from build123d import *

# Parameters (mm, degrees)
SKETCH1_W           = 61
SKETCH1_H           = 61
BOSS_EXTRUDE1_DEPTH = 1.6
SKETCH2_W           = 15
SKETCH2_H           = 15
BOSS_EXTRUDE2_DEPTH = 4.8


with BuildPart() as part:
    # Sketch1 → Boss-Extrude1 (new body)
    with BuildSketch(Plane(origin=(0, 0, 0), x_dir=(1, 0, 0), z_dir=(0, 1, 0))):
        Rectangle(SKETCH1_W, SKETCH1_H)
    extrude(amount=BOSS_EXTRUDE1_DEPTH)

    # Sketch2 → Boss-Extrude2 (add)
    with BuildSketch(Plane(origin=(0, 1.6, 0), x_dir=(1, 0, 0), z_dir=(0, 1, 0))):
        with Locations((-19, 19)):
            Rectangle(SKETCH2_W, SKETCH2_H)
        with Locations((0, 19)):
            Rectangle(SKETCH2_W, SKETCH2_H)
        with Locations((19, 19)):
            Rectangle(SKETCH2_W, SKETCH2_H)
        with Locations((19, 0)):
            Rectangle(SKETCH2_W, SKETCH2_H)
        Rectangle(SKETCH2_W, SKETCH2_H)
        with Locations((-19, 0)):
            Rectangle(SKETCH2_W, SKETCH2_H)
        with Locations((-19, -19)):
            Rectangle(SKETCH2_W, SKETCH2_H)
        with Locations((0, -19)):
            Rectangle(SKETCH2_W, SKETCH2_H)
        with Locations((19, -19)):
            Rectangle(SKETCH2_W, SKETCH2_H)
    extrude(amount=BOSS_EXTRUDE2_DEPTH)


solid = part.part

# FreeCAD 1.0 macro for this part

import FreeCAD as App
import Part
import Sketcher
from FreeCAD import Vector


def add_polygon(sketch, points):
    """Adds a closed chain of lines whose ends are joined by coincident constraints."""
    first, n = sketch.GeometryCount, len(points)
    for a, b in zip(points, points[1:] + points[:1]):
        sketch.addGeometry(Part.LineSegment(App.Vector(*a, 0), App.Vector(*b, 0)), False)
    for i in range(n):
        sketch.addConstraint(Sketcher.Constraint("Coincident", first + i, 2, first + (i + 1) % n, 1))

doc = App.newDocument("Part")
body = doc.addObject("PartDesign::Body", "Body")

# Sketch on XZ plane
sketch1 = body.newObject("Sketcher::SketchObject", "Sketch")
sketch1.AttachmentSupport = (doc.getObject("XZ_Plane"), [""])
sketch1.MapMode = "FlatFace"
add_polygon(sketch1, [(-30, -30), (-30, 30), (30, 30), (30, -30)])  # lines 0-3
sketch1.addConstraint([
    Sketcher.Constraint("Vertical", 0),
    Sketcher.Constraint("Horizontal", 1),
    Sketcher.Constraint("Vertical", 2),
    Sketcher.Constraint("Horizontal", 3),
    Sketcher.Constraint("Symmetric", 0, 2, 2, 2, -1, 1),
    Sketcher.Constraint("Equal", 3, 0),
    Sketcher.Constraint("DistanceX", 1, 1, 1, 2, 61.0),
])
pad1 = body.newObject("PartDesign::Pad", "Pad")
pad1.Profile = sketch1
pad1.Length = 1.6
pad1.Reversed = True

# Sketch on XZ plane
sketch2 = body.newObject("Sketcher::SketchObject", "Sketch001")
sketch2.AttachmentSupport = (doc.getObject("XZ_Plane"), [""])
sketch2.MapMode = "FlatFace"
sketch2.AttachmentOffset = App.Placement(Vector(0, 0, -1.6), App.Rotation())
add_polygon(sketch2, [(-26, -26), (-26, -12), (-12, -12), (-12, -26)])  # lines 0-3
add_polygon(sketch2, [(-8, -26), (-8, -12), (8, -12), (8, -26)])  # lines 4-7
add_polygon(sketch2, [(12, -26), (12, -12), (26, -12), (26, -26)])  # lines 8-11
add_polygon(sketch2, [(12, -8), (12, 8), (26, 8), (26, -8)])  # lines 12-15
add_polygon(sketch2, [(-8, -8), (-8, 8), (8, 8), (8, -8)])  # lines 16-19
add_polygon(sketch2, [(-26, -8), (-26, 8), (-12, 8), (-12, -8)])  # lines 20-23
add_polygon(sketch2, [(-26, 12), (-26, 26), (-12, 26), (-12, 12)])  # lines 24-27
add_polygon(sketch2, [(-8, 12), (-8, 26), (8, 26), (8, 12)])  # lines 28-31
add_polygon(sketch2, [(12, 12), (12, 26), (26, 26), (26, 12)])  # lines 32-35
sketch2.addConstraint([
    Sketcher.Constraint("Vertical", 0),
    Sketcher.Constraint("Horizontal", 1),
    Sketcher.Constraint("Vertical", 2),
    Sketcher.Constraint("Horizontal", 3),
    Sketcher.Constraint("Vertical", 4),
    Sketcher.Constraint("Horizontal", 5),
    Sketcher.Constraint("Vertical", 6),
    Sketcher.Constraint("Horizontal", 7),
    Sketcher.Constraint("Vertical", 8),
    Sketcher.Constraint("Horizontal", 9),
    Sketcher.Constraint("Vertical", 10),
    Sketcher.Constraint("Horizontal", 11),
    Sketcher.Constraint("Vertical", 12),
    Sketcher.Constraint("Horizontal", 13),
    Sketcher.Constraint("Vertical", 14),
    Sketcher.Constraint("Horizontal", 15),
    Sketcher.Constraint("Vertical", 16),
    Sketcher.Constraint("Horizontal", 17),
    Sketcher.Constraint("Vertical", 18),
    Sketcher.Constraint("Horizontal", 19),
    Sketcher.Constraint("Vertical", 20),
    Sketcher.Constraint("Horizontal", 21),
    Sketcher.Constraint("Vertical", 22),
    Sketcher.Constraint("Horizontal", 23),
    Sketcher.Constraint("Vertical", 24),
    Sketcher.Constraint("Horizontal", 25),
    Sketcher.Constraint("Vertical", 26),
    Sketcher.Constraint("Horizontal", 27),
    Sketcher.Constraint("Vertical", 28),
    Sketcher.Constraint("Horizontal", 29),
    Sketcher.Constraint("Vertical", 30),
    Sketcher.Constraint("Horizontal", 31),
    Sketcher.Constraint("Vertical", 32),
    Sketcher.Constraint("Horizontal", 33),
    Sketcher.Constraint("Vertical", 34),
    Sketcher.Constraint("Horizontal", 35),
    Sketcher.Constraint("Symmetric", 16, 2, 18, 2, -1, 1),
    Sketcher.Constraint("Symmetric", 14, 2, 20, 2, -1, 1),
    Sketcher.Constraint("Symmetric", 12, 2, 22, 2, -1, 1),
    Sketcher.Constraint("Symmetric", 10, 2, 24, 2, -1, 1),
    Sketcher.Constraint("Symmetric", 8, 2, 26, 2, -1, 1),
    Sketcher.Constraint("Symmetric", 6, 2, 28, 2, -1, 1),
    Sketcher.Constraint("Symmetric", 4, 2, 30, 2, -1, 1),
    Sketcher.Constraint("Symmetric", 2, 2, 32, 2, -1, 1),
    Sketcher.Constraint("Symmetric", 0, 2, 34, 2, -1, 1),
    Sketcher.Constraint("Symmetric", 1, 2, 8, 2, -2),
    Sketcher.Constraint("Symmetric", 3, 2, 10, 2, -2),
    Sketcher.Constraint("Horizontal", 1, 2, 4, 2),
    Sketcher.Constraint("Horizontal", 3, 2, 6, 2),
    Sketcher.Constraint("Horizontal", 13, 2, 16, 2),
    Sketcher.Constraint("Horizontal", 15, 2, 18, 2),
    Sketcher.Constraint("Vertical", 11, 2, 12, 2),
    Sketcher.Constraint("Vertical", 10, 2, 13, 2),
    Sketcher.Constraint("Vertical", 7, 2, 16, 2),
    Sketcher.Constraint("Vertical", 6, 2, 17, 2),
    Sketcher.Constraint("Equal", 3, 5),
    Sketcher.Constraint("Equal", 35, 0),
    Sketcher.Constraint("Equal", 10, 12),
    Sketcher.Constraint("DistanceX", 1, 1, 1, 2, 15.0),
    Sketcher.Constraint("DistanceX", 1, 2, 4, 2, 4.0),
    Sketcher.Constraint("DistanceY", 8, 2, 12, 2, 19.0),
])
pad2 = body.newObject("PartDesign::Pad", "Pad001")
pad2.Profile = sketch2
pad2.Length = 4.8
pad2.Reversed = True

doc.recompute()
